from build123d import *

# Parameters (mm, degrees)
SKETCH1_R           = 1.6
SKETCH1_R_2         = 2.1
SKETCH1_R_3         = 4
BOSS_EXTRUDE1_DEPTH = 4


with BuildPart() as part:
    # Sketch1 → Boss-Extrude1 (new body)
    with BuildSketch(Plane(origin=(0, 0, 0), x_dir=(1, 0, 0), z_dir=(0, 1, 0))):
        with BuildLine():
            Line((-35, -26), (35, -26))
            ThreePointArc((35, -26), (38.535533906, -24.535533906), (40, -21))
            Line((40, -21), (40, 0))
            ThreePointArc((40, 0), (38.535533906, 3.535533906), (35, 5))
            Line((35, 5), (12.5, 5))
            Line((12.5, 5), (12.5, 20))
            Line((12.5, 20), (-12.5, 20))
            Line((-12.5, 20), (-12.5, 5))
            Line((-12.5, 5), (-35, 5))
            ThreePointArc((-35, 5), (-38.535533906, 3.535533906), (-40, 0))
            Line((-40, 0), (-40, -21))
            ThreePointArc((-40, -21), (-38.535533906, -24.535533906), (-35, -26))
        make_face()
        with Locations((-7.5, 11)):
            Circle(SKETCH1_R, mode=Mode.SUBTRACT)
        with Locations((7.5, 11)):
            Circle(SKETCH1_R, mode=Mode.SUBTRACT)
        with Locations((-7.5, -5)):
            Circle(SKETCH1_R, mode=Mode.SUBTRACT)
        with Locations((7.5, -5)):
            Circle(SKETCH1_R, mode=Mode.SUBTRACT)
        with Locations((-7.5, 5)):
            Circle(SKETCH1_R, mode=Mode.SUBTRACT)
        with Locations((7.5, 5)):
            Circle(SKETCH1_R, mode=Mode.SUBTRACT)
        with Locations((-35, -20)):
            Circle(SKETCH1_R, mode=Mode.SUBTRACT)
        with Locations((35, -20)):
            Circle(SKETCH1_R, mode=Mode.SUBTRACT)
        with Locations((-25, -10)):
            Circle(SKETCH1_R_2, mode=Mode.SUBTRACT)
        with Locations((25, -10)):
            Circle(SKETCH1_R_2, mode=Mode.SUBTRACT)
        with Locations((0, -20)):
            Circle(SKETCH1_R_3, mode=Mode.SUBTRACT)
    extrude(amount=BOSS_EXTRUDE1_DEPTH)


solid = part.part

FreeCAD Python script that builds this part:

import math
import FreeCAD as App
import Part
import Sketcher

V = App.Vector
Q = App.Units.Quantity

doc = App.newDocument("Part")
body = doc.addObject("PartDesign::Body", "Body")

# Sketch on XZ plane
sketch1 = body.newObject("Sketcher::SketchObject", "Sketch")
sketch1.AttachmentSupport = (doc.getObject("XZ_Plane"), [""])
sketch1.MapMode = "FlatFace"
sketch1.addGeometry([
    Part.LineSegment(V(-35, 26, 0), V(35, 26, 0)),  # 0
    Part.ArcOfCircle(Part.Circle(V(35, 21, 0), V(0, 0, 1), 5), math.radians(0), math.radians(90)),  # 1
    Part.LineSegment(V(40, 21, 0), V(40, 0, 0)),  # 2
    Part.ArcOfCircle(Part.Circle(V(35, 0, 0), V(0, 0, 1), 5), math.radians(-90), math.radians(0)),  # 3
    Part.LineSegment(V(35, -5, 0), V(12.5, -5, 0)),  # 4
    Part.LineSegment(V(12.5, -5, 0), V(12.5, -20, 0)),  # 5
    Part.LineSegment(V(12.5, -20, 0), V(-12.5, -20, 0)),  # 6
    Part.LineSegment(V(-12.5, -20, 0), V(-12.5, -5, 0)),  # 7
    Part.LineSegment(V(-12.5, -5, 0), V(-35, -5, 0)),  # 8
    Part.ArcOfCircle(Part.Circle(V(-35, 0, 0), V(0, 0, 1), 5), math.radians(180), math.radians(270)),  # 9
    Part.LineSegment(V(-40, 0, 0), V(-40, 21, 0)),  # 10
    Part.ArcOfCircle(Part.Circle(V(-35, 21, 0), V(0, 0, 1), 5), math.radians(90), math.radians(180)),  # 11
    Part.Circle(V(-35, 20, 0), V(0, 0, 1), 1.6),  # 12
    Part.Circle(V(-25, 10, 0), V(0, 0, 1), 2.1),  # 13
    Part.Circle(V(0, 20, 0), V(0, 0, 1), 4),  # 14
    Part.Circle(V(35, 20, 0), V(0, 0, 1), 1.6),  # 15
    Part.Circle(V(25, 10, 0), V(0, 0, 1), 2.1),  # 16
    Part.Circle(V(-7.5, 5, 0), V(0, 0, 1), 1.6),  # 17
    Part.Circle(V(-7.5, -5, 0), V(0, 0, 1), 1.6),  # 18
    Part.Circle(V(-7.5, -11, 0), V(0, 0, 1), 1.6),  # 19
    Part.Circle(V(7.5, 5, 0), V(0, 0, 1), 1.6),  # 20
    Part.Circle(V(7.5, -5, 0), V(0, 0, 1), 1.6),  # 21
    Part.Circle(V(7.5, -11, 0), V(0, 0, 1), 1.6),  # 22
], False)
sketch1.addConstraint([
    Sketcher.Constraint("Tangent", 0, 2, 1, 2),
    Sketcher.Constraint("Tangent", 1, 1, 2, 1),
    Sketcher.Constraint("Tangent", 2, 2, 3, 2),
    Sketcher.Constraint("Tangent", 3, 1, 4, 1),
    Sketcher.Constraint("Coincident", 4, 2, 5, 1),
    Sketcher.Constraint("Coincident", 5, 2, 6, 1),
    Sketcher.Constraint("Coincident", 6, 2, 7, 1),
    Sketcher.Constraint("Coincident", 7, 2, 8, 1),
    Sketcher.Constraint("Tangent", 8, 2, 9, 2),
    Sketcher.Constraint("Tangent", 9, 1, 10, 1),
    Sketcher.Constraint("Tangent", 10, 2, 11, 2),
    Sketcher.Constraint("Tangent", 11, 1, 0, 1),
    Sketcher.Constraint("Horizontal", 0),
    Sketcher.Constraint("Vertical", 2),
    Sketcher.Constraint("Horizontal", 4),
    Sketcher.Constraint("Vertical", 5),
    Sketcher.Constraint("Horizontal", 6),
    Sketcher.Constraint("Vertical", 7),
    Sketcher.Constraint("Horizontal", 8),
    Sketcher.Constraint("Vertical", 10),
    Sketcher.Constraint("Equal", 1, 3),
    Sketcher.Constraint("Equal", 3, 9),
    Sketcher.Constraint("Equal", 9, 11),
    Sketcher.Constraint("Equal", 12, 15),
    Sketcher.Constraint("Equal", 13, 16),
    Sketcher.Constraint("Equal", 15, 17),
    Sketcher.Constraint("Equal", 17, 18),
    Sketcher.Constraint("Equal", 18, 19),
    Sketcher.Constraint("Equal", 19, 20),
    Sketcher.Constraint("Equal", 20, 21),
    Sketcher.Constraint("Equal", 21, 22),
    Sketcher.Constraint("Symmetric", 3, 3, 9, 3, -1, 1),
    Sketcher.Constraint("Symmetric", 18, 3, 20, 3, -1, 1),
    Sketcher.Constraint("Symmetric", 17, 3, 21, 3, -1, 1),
    Sketcher.Constraint("Symmetric", 12, 3, 15, 3, -2),
    Sketcher.Constraint("Symmetric", 13, 3, 16, 3, -2),
    Sketcher.Constraint("Symmetric", 17, 3, 20, 3, -2),
    Sketcher.Constraint("Symmetric", 19, 3, 22, 3, -2),
    Sketcher.Constraint("Symmetric", 4, 2, 7, 2, -2),
    Sketcher.Constraint("PointOnObject", 14, 3, -2),
    Sketcher.Constraint("Horizontal", 12, 3, 14, 3),
    Sketcher.Constraint("Horizontal", 21, 3, 3, 1),
    Sketcher.Constraint("Vertical", 11, 3, 12, 3),
    Sketcher.Constraint("Vertical", 18, 3, 19, 3),
    Sketcher.Constraint("Diameter", 14, Q("8 mm")),
    Sketcher.Constraint("Radius", 1, Q("5 mm")),
    Sketcher.Constraint("Diameter", 12, Q("3.2 mm")),
    Sketcher.Constraint("Diameter", 13, Q("4.2 mm")),
    Sketcher.Constraint("DistanceX", 0, 1, 0, 2, Q("70 mm")),
    Sketcher.Constraint("DistanceX", 6, 2, 6, 1, Q("25 mm")),
    Sketcher.Constraint("DistanceY", 2, 2, 2, 1, Q("21 mm")),
    Sketcher.Constraint("DistanceY", 5, 2, 5, 1, Q("15 mm")),
    Sketcher.Constraint("DistanceY", -1, 1, 12, 3, Q("20 mm")),
    Sketcher.Constraint("DistanceX", 13, 3, -1, 1, Q("25 mm")),
    Sketcher.Constraint("DistanceY", -1, 1, 13, 3, Q("10 mm")),
    Sketcher.Constraint("DistanceY", 19, 3, -1, 1, Q("11 mm")),
    Sketcher.Constraint("DistanceX", 17, 3, 20, 3, Q("15 mm")),
])
pad1 = body.newObject("PartDesign::Pad", "Pad")
pad1.Profile = sketch1
pad1.Length = 4
pad1.Reversed = True

doc.recompute()
